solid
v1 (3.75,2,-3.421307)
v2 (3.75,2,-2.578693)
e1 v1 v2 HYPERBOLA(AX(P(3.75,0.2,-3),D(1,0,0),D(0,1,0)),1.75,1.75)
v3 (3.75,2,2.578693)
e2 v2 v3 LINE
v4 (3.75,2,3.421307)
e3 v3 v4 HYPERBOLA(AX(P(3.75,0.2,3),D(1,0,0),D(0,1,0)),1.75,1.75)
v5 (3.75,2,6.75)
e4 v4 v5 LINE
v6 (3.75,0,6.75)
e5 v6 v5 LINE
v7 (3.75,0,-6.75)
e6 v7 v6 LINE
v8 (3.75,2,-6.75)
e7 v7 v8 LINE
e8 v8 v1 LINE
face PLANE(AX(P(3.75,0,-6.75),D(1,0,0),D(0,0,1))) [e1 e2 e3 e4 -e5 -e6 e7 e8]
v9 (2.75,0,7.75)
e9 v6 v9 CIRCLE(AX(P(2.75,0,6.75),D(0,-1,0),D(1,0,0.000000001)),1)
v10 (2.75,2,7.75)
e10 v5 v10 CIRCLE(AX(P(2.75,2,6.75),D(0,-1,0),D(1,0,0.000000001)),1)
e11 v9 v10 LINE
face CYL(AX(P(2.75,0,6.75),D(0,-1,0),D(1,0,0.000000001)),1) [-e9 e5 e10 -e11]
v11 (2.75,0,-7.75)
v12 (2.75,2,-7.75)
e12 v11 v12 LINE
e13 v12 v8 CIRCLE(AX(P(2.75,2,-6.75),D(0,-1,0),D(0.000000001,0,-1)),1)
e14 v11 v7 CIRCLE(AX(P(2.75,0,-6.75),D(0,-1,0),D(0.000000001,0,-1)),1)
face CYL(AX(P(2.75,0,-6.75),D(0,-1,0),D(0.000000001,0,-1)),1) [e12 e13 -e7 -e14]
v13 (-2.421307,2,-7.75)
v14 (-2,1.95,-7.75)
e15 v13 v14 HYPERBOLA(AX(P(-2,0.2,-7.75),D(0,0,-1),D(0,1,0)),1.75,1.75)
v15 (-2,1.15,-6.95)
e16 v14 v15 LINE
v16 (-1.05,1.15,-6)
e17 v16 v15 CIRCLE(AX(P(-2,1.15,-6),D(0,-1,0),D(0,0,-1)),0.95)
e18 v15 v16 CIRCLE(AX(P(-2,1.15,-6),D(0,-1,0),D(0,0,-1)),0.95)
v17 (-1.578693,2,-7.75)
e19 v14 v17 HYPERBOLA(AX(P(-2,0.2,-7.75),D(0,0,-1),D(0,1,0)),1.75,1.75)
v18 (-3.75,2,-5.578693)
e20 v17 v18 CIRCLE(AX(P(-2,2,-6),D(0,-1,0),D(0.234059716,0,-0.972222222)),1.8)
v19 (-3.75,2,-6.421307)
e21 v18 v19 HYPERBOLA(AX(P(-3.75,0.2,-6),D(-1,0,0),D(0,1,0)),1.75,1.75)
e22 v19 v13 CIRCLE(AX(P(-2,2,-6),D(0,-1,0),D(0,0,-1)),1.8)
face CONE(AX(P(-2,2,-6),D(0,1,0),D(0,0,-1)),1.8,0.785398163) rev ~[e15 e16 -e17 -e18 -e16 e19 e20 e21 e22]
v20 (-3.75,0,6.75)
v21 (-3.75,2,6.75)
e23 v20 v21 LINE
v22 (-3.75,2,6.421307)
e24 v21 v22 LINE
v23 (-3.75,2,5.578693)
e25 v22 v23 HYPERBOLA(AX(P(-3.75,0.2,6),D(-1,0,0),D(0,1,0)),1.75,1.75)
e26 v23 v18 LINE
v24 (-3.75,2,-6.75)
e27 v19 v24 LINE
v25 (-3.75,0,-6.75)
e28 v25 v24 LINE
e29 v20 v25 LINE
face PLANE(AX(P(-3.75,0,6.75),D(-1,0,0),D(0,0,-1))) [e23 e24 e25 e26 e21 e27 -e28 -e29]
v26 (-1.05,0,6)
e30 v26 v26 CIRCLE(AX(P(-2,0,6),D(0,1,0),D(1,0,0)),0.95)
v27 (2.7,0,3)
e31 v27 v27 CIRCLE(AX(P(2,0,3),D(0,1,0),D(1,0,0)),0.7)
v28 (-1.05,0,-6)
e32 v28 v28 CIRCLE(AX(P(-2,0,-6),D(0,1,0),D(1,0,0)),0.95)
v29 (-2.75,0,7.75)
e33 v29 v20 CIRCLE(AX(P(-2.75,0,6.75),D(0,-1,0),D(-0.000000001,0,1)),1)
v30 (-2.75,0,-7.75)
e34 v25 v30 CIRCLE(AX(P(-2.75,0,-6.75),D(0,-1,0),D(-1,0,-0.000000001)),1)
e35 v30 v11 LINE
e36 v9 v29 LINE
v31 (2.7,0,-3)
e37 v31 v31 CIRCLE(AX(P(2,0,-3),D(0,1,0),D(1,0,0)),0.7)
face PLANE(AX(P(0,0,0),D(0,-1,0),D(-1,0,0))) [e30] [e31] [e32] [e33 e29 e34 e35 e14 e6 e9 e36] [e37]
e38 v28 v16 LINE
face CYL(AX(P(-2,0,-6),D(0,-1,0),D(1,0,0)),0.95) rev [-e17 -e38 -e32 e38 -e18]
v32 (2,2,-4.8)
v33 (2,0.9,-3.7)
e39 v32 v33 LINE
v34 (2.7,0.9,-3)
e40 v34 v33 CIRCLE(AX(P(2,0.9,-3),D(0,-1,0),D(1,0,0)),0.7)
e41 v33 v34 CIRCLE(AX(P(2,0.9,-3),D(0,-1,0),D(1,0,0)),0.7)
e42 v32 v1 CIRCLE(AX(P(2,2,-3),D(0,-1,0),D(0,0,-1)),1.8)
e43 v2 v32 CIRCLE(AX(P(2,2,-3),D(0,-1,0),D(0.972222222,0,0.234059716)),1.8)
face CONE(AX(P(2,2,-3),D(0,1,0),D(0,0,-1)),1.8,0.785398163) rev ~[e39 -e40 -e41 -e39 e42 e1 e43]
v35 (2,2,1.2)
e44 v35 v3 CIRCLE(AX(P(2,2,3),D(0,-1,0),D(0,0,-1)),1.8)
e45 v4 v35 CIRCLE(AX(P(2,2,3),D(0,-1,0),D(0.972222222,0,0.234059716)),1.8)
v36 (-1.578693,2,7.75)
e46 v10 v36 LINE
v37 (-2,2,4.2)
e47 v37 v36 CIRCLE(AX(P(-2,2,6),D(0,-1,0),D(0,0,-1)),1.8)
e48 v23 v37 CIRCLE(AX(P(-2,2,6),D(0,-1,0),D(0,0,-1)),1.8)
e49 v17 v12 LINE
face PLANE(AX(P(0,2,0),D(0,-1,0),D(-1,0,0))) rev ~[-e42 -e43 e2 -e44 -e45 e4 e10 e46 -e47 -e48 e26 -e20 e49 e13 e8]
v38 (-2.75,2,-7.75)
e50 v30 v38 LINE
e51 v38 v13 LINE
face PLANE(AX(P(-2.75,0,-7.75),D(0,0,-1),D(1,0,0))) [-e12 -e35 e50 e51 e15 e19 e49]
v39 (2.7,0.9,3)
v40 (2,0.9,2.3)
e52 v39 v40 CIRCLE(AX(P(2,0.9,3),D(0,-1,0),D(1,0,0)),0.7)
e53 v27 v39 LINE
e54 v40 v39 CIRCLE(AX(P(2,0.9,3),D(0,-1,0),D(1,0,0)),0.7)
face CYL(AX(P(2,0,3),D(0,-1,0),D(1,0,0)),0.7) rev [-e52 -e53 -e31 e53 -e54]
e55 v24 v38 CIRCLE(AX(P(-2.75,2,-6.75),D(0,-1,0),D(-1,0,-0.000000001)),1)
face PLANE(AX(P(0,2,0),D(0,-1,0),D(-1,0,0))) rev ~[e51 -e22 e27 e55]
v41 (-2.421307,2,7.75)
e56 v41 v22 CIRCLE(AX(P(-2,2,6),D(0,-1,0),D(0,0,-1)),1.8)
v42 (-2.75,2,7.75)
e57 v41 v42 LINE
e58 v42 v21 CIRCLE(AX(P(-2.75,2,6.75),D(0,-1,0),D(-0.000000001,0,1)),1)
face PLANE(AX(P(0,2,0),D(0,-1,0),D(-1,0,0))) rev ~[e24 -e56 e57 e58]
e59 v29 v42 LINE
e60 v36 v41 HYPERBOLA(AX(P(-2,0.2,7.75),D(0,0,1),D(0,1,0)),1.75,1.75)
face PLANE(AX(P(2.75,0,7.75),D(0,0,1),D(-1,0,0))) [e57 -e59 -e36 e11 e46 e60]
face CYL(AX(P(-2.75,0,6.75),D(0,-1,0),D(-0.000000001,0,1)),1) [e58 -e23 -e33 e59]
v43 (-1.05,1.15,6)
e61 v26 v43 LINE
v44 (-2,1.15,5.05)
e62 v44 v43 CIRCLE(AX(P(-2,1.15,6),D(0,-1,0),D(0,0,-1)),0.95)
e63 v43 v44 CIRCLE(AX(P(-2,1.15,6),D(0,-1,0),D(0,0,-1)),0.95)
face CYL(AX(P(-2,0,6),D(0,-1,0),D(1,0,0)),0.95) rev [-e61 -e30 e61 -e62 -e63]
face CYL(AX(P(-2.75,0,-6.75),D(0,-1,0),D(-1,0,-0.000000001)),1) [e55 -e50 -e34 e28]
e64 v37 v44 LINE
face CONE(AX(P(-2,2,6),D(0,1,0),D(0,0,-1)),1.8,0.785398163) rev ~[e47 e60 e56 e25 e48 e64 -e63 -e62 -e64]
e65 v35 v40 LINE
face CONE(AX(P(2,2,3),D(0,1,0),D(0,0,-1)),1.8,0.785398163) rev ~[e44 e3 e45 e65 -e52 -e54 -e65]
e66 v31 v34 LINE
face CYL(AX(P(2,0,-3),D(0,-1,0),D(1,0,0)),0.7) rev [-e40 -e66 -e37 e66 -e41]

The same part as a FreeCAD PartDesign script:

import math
import FreeCAD as App
import Part
import Sketcher
from FreeCAD import Vector
Q = App.Units.Quantity

doc = App.newDocument("Part")
body = doc.addObject("PartDesign::Body", "Body")

# Sketch on XZ plane
sketch1 = body.newObject("Sketcher::SketchObject", "Sketch")
sketch1.AttachmentSupport = (doc.getObject("XZ_Plane"), [""])
sketch1.MapMode = "FlatFace"
sketch1.addGeometry(Part.LineSegment(Vector(2.75, -7.75, 0), Vector(-2.75, -7.75, 0)), False)
sketch1.addGeometry(Part.ArcOfCircle(Part.Circle(Vector(-2.75, -6.75, 0), Vector(0, 0, 1), 1), math.radians(-180), math.radians(-90)), False)
sketch1.addGeometry(Part.LineSegment(Vector(-3.75, -6.75, 0), Vector(-3.75, 6.75, 0)), False)
sketch1.addGeometry(Part.ArcOfCircle(Part.Circle(Vector(-2.75, 6.75, 0), Vector(0, 0, 1), 1), math.radians(90), math.radians(180)), False)
sketch1.addGeometry(Part.LineSegment(Vector(-2.75, 7.75, 0), Vector(2.75, 7.75, 0)), False)
sketch1.addGeometry(Part.ArcOfCircle(Part.Circle(Vector(2.75, 6.75, 0), Vector(0, 0, 1), 1), math.radians(0), math.radians(90)), False)
sketch1.addGeometry(Part.LineSegment(Vector(3.75, 6.75, 0), Vector(3.75, -6.75, 0)), False)
sketch1.addGeometry(Part.ArcOfCircle(Part.Circle(Vector(2.75, -6.75, 0), Vector(0, 0, 1), 1), math.radians(-90), math.radians(0)), False)
sketch1.addGeometry(Part.Circle(Vector(2, 3, 0), Vector(0, 0, 1), 0.7), False)
sketch1.addGeometry(Part.Circle(Vector(-2, 6, 0), Vector(0, 0, 1), 0.95), False)
sketch1.addGeometry(Part.Circle(Vector(2, -3, 0), Vector(0, 0, 1), 0.7), False)
sketch1.addGeometry(Part.Circle(Vector(-2, -6, 0), Vector(0, 0, 1), 0.95), False)
sketch1.addConstraint(Sketcher.Constraint("Tangent", 0, 2, 1, 2))
sketch1.addConstraint(Sketcher.Constraint("Tangent", 1, 1, 2, 1))
sketch1.addConstraint(Sketcher.Constraint("Tangent", 2, 2, 3, 2))
sketch1.addConstraint(Sketcher.Constraint("Tangent", 3, 1, 4, 1))
sketch1.addConstraint(Sketcher.Constraint("Tangent", 4, 2, 5, 2))
sketch1.addConstraint(Sketcher.Constraint("Tangent", 5, 1, 6, 1))
sketch1.addConstraint(Sketcher.Constraint("Tangent", 6, 2, 7, 2))
sketch1.addConstraint(Sketcher.Constraint("Tangent", 7, 1, 0, 1))
sketch1.addConstraint(Sketcher.Constraint("Horizontal", 0))
sketch1.addConstraint(Sketcher.Constraint("Vertical", 2))
sketch1.addConstraint(Sketcher.Constraint("Horizontal", 4))
sketch1.addConstraint(Sketcher.Constraint("Vertical", 6))
sketch1.addConstraint(Sketcher.Constraint("Equal", 1, 3))
sketch1.addConstraint(Sketcher.Constraint("Equal", 3, 5))
sketch1.addConstraint(Sketcher.Constraint("Equal", 5, 7))
sketch1.addConstraint(Sketcher.Constraint("Equal", 8, 10))
sketch1.addConstraint(Sketcher.Constraint("Equal", 9, 11))
sketch1.addConstraint(Sketcher.Constraint("Symmetric", 1, 3, 5, 3, -1, 1))
sketch1.addConstraint(Sketcher.Constraint("Symmetric", 8, 3, 10, 3, -1))
sketch1.addConstraint(Sketcher.Constraint("Symmetric", 9, 3, 11, 3, -1))
sketch1.addConstraint(Sketcher.Constraint("Radius", 1, Q("1 mm")))
sketch1.addConstraint(Sketcher.Constraint("Diameter", 8, Q("1.4 mm")))
sketch1.addConstraint(Sketcher.Constraint("Diameter", 9, Q("1.9 mm")))
sketch1.addConstraint(Sketcher.Constraint("DistanceX", 0, 2, 0, 1, Q("5.5 mm")))
sketch1.addConstraint(Sketcher.Constraint("DistanceY", 2, 1, 2, 2, Q("13.5 mm")))
sketch1.addConstraint(Sketcher.Constraint("DistanceX", -1, 1, 8, 3, Q("2 mm")))
sketch1.addConstraint(Sketcher.Constraint("DistanceY", -1, 1, 8, 3, Q("3 mm")))
sketch1.addConstraint(Sketcher.Constraint("DistanceX", 9, 3, -1, 1, Q("2 mm")))
sketch1.addConstraint(Sketcher.Constraint("DistanceY", -1, 1, 9, 3, Q("6 mm")))
pad1 = body.newObject("PartDesign::Pad", "Pad")
pad1.Profile = sketch1
pad1.Length = 2
pad1.Reversed = True

# Sketch on XZ plane
sketch2 = body.newObject("Sketcher::SketchObject", "Sketch001")
sketch2.AttachmentSupport = (doc.getObject("XZ_Plane"), [""])
sketch2.MapMode = "FlatFace"
sketch2.AttachmentOffset = App.Placement(Vector(0, 0, -2), App.Rotation())
sketch2.addGeometry(Part.Circle(Vector(-2, 6, 0), Vector(0, 0, 1), 0.7), False)
sketch2.addGeometry(Part.Circle(Vector(-2, -6, 0), Vector(0, 0, 1), 0.7), False)
sketch2.addGeometry(Part.Circle(Vector(2, 3, 0), Vector(0, 0, 1), 0.7), False)
sketch2.addGeometry(Part.Circle(Vector(2, -3, 0), Vector(0, 0, 1), 0.7), False)
sketch2.addConstraint(Sketcher.Constraint("Equal", 0, 1))
sketch2.addConstraint(Sketcher.Constraint("Equal", 1, 2))
sketch2.addConstraint(Sketcher.Constraint("Equal", 2, 3))
sketch2.addConstraint(Sketcher.Constraint("Symmetric", 0, 3, 1, 3, -1))
sketch2.addConstraint(Sketcher.Constraint("Symmetric", 2, 3, 3, 3, -1))
sketch2.addConstraint(Sketcher.Constraint("Diameter", 0, Q("1.4 mm")))
sketch2.addConstraint(Sketcher.Constraint("DistanceX", 0, 3, -1, 1, Q("2 mm")))
sketch2.addConstraint(Sketcher.Constraint("DistanceY", -1, 1, 0, 3, Q("6 mm")))
sketch2.addConstraint(Sketcher.Constraint("DistanceX", -1, 1, 2, 3, Q("2 mm")))
sketch2.addConstraint(Sketcher.Constraint("DistanceY", -1, 1, 2, 3, Q("3 mm")))
doc.recompute()
hole = body.newObject("PartDesign::Hole", "Hole")
hole.Profile = sketch2
hole.ThreadType = "None"
hole.Diameter = 1.4
hole.DepthType = "ThroughAll"
hole.HoleCutType = "Countersink"
hole.HoleCutDiameter = 3.6
hole.HoleCutCountersinkAngle = 90
hole.Reversed = True

doc.recompute()
